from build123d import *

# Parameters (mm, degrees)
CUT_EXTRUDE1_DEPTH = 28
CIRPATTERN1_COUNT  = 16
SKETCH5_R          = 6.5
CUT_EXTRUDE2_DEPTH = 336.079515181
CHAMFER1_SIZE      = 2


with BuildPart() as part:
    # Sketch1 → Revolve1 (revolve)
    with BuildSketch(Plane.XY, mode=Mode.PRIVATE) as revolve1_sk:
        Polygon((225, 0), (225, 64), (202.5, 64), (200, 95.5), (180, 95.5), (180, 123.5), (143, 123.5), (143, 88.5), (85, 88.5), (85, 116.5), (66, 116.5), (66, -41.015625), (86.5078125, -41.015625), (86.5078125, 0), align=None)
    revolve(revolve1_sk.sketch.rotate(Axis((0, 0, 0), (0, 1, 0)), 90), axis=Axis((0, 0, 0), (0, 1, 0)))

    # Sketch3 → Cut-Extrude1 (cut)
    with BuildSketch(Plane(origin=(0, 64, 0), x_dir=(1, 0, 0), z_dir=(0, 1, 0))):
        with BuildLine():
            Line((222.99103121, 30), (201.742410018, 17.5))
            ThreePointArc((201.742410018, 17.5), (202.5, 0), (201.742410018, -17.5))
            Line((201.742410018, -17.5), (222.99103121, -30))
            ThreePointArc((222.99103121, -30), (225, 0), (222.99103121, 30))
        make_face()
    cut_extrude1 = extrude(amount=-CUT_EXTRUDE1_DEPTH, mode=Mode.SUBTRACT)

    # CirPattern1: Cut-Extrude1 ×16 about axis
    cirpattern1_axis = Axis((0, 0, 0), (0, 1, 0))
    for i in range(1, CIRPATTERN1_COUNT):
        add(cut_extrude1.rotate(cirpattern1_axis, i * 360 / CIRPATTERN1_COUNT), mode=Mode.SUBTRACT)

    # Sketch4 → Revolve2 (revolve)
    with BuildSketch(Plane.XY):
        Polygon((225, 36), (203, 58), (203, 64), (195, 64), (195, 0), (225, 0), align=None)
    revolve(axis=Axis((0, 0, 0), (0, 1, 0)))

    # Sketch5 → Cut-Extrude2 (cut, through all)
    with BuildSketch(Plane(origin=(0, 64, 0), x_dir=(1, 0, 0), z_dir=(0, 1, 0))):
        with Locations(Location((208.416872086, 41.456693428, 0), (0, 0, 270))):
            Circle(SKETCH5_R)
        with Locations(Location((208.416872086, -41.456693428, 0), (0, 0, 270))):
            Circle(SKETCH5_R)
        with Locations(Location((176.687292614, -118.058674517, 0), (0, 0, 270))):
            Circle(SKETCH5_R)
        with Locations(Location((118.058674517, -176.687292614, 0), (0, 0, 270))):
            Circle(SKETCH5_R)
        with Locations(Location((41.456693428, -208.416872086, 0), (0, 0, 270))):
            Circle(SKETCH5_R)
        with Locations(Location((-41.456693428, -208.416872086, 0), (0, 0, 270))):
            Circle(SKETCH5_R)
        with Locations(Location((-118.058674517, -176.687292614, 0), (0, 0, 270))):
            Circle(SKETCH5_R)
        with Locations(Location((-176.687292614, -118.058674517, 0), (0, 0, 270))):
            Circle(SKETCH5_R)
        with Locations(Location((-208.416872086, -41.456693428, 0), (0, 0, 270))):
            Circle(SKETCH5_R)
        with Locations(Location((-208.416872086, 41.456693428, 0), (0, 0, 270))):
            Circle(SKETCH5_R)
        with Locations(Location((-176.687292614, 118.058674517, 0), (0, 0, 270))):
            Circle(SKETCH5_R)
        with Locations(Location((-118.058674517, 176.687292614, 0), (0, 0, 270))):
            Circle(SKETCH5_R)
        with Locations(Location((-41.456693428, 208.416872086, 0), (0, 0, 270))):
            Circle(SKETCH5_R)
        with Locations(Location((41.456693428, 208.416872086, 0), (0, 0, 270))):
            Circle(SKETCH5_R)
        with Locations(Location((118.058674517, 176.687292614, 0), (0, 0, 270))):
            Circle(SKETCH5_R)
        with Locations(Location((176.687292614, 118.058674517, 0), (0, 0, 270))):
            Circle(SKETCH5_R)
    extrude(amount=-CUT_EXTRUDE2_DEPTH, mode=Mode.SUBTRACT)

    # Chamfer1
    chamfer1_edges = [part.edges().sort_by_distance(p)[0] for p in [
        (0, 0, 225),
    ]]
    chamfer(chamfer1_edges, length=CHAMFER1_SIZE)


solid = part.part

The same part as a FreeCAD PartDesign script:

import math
import FreeCAD as App
import Part
import Sketcher

V = App.Vector


def edges_at(feature, points):
    """Names of the edges that pass closest to the given points."""
    edges = feature.Shape.Edges
    near = lambda p: min(range(len(edges)), key=lambda i: edges[i].distToShape(Part.Vertex(*p))[0])
    return sorted({f"Edge{near(p) + 1}" for p in points})

doc = App.newDocument("Part")
params = doc.addObject("Spreadsheet::Sheet", "Params")
for row, (alias, value) in enumerate([
    ("sketch1_width", "20 mm"),
    ("sketch1_width2", "37 mm"),
    ("sketch1_width3", "58 mm"),
    ("sketch1_width4", "19 mm"),
    ("sketch1_height", "64 mm"),
    ("revolution_angle", "360 deg"),
    ("sketch2_radius", "225 mm"),
    ("sketch2_radius2", "202.5 mm"),
    ("pocket1_length", "28 mm"),
    ("sketch3_width", "8 mm"),
    ("sketch3_width2", "30 mm"),
    ("sketch3_height", "6 mm"),
    ("sketch3_height2", "64 mm"),
    ("sketch3_height3", "36 mm"),
    ("revolution2_angle", "360 deg"),
    ("sketch4_diameter", "13 mm"),
    ("chamfer_size", "2 mm"),
], start=1):
    params.set(f"A{row}", alias)
    params.set(f"B{row}", "=" + value)
    params.setAlias(f"B{row}", alias)

body = doc.addObject("PartDesign::Body", "Body")

sketch1 = doc.addObject("Sketcher::SketchObject", "Sketch")
body.addObject(sketch1)
sketch1.AttachmentSupport = (doc.XY_Plane, [""])
sketch1.MapMode = "FlatFace"
sketch1.addGeometry(Part.LineSegment(V(225, 0, 0), V(225, 64, 0)), False)
sketch1.addGeometry(Part.LineSegment(V(225, 64, 0), V(202.5, 64, 0)), False)
sketch1.addGeometry(Part.LineSegment(V(202.5, 64, 0), V(200, 95.5, 0)), False)
sketch1.addGeometry(Part.LineSegment(V(200, 95.5, 0), V(180, 95.5, 0)), False)
sketch1.addGeometry(Part.LineSegment(V(180, 95.5, 0), V(180, 123.5, 0)), False)
sketch1.addGeometry(Part.LineSegment(V(180, 123.5, 0), V(143, 123.5, 0)), False)
sketch1.addGeometry(Part.LineSegment(V(143, 123.5, 0), V(143, 88.5, 0)), False)
sketch1.addGeometry(Part.LineSegment(V(143, 88.5, 0), V(85, 88.5, 0)), False)
sketch1.addGeometry(Part.LineSegment(V(85, 88.5, 0), V(85, 116.5, 0)), False)
sketch1.addGeometry(Part.LineSegment(V(85, 116.5, 0), V(66, 116.5, 0)), False)
sketch1.addGeometry(Part.LineSegment(V(66, 116.5, 0), V(66, -41.015625, 0)), False)
sketch1.addGeometry(Part.LineSegment(V(66, -41.015625, 0), V(86.507812, -41.015625, 0)), False)
sketch1.addGeometry(Part.LineSegment(V(86.507812, -41.015625, 0), V(86.507812, 0, 0)), False)
sketch1.addGeometry(Part.LineSegment(V(86.507812, 0, 0), V(225, 0, 0)), False)
sketch1.addConstraint(Sketcher.Constraint("Coincident", 0, 2, 1, 1))
sketch1.addConstraint(Sketcher.Constraint("Coincident", 1, 2, 2, 1))
sketch1.addConstraint(Sketcher.Constraint("Coincident", 2, 2, 3, 1))
sketch1.addConstraint(Sketcher.Constraint("Coincident", 3, 2, 4, 1))
sketch1.addConstraint(Sketcher.Constraint("Coincident", 4, 2, 5, 1))
sketch1.addConstraint(Sketcher.Constraint("Coincident", 5, 2, 6, 1))
sketch1.addConstraint(Sketcher.Constraint("Coincident", 6, 2, 7, 1))
sketch1.addConstraint(Sketcher.Constraint("Coincident", 7, 2, 8, 1))
sketch1.addConstraint(Sketcher.Constraint("Coincident", 8, 2, 9, 1))
sketch1.addConstraint(Sketcher.Constraint("Coincident", 9, 2, 10, 1))
sketch1.addConstraint(Sketcher.Constraint("Coincident", 10, 2, 11, 1))
sketch1.addConstraint(Sketcher.Constraint("Coincident", 11, 2, 12, 1))
sketch1.addConstraint(Sketcher.Constraint("Coincident", 12, 2, 13, 1))
sketch1.addConstraint(Sketcher.Constraint("Coincident", 13, 2, 0, 1))
sketch1.addConstraint(Sketcher.Constraint("Vertical", 0))
sketch1.addConstraint(Sketcher.Constraint("Horizontal", 1))
sketch1.addConstraint(Sketcher.Constraint("Horizontal", 3))
sketch1.addConstraint(Sketcher.Constraint("Vertical", 4))
sketch1.addConstraint(Sketcher.Constraint("Horizontal", 5))
sketch1.addConstraint(Sketcher.Constraint("Vertical", 6))
sketch1.addConstraint(Sketcher.Constraint("Horizontal", 7))
sketch1.addConstraint(Sketcher.Constraint("Vertical", 8))
sketch1.addConstraint(Sketcher.Constraint("Horizontal", 9))
sketch1.addConstraint(Sketcher.Constraint("Vertical", 10))
sketch1.addConstraint(Sketcher.Constraint("Horizontal", 11))
sketch1.addConstraint(Sketcher.Constraint("Vertical", 12))
sketch1.addConstraint(Sketcher.Constraint("Horizontal", 13))
sketch1.addConstraint(Sketcher.Constraint("PointOnObject", 12, 2, -1))
sketch1.addConstraint(Sketcher.Constraint("Equal", 4, 8))
sketch1.addConstraint(Sketcher.Constraint("DistanceX", 3, 2, 3, 1, 20.0))
sketch1.addConstraint(Sketcher.Constraint("DistanceX", 5, 2, 5, 1, 37.0))
sketch1.addConstraint(Sketcher.Constraint("DistanceX", 7, 2, 7, 1, 58.0))
sketch1.addConstraint(Sketcher.Constraint("DistanceX", 9, 2, 9, 1, 19.0))
sketch1.addConstraint(Sketcher.Constraint("DistanceY", 0, 1, 0, 2, 64.0))
sketch1.addConstraint(Sketcher.Constraint("DistanceY", 4, 1, 4, 2, 28.0))
sketch1.addConstraint(Sketcher.Constraint("DistanceY", 6, 2, 6, 1, 35.0))
sketch1.addConstraint(Sketcher.Constraint("DistanceX", 1, 2, 1, 1, 22.5))
sketch1.addConstraint(Sketcher.Constraint("DistanceX", -1, 1, 0, 2, 225.0))
sketch1.addConstraint(Sketcher.Constraint("DistanceX", -1, 1, 2, 2, 200.0))
sketch1.addConstraint(Sketcher.Constraint("DistanceY", -1, 1, 2, 2, 95.5))
sketch1.addConstraint(Sketcher.Constraint("DistanceX", 11, 1, 11, 2, 20.507812))
sketch1.addConstraint(Sketcher.Constraint("DistanceY", 10, 2, 10, 1, 157.515625))
sketch1.setExpression("Constraints[29]", "Params.sketch1_width")
sketch1.setExpression("Constraints[30]", "Params.sketch1_width2")
sketch1.setExpression("Constraints[31]", "Params.sketch1_width3")
sketch1.setExpression("Constraints[32]", "Params.sketch1_width4")
sketch1.setExpression("Constraints[33]", "Params.sketch1_height")
revolution = doc.addObject("PartDesign::Revolution", "Revolution")
body.addObject(revolution)
revolution.Profile = sketch1
revolution.ReferenceAxis = (sketch1, ["V_Axis"])
revolution.setExpression("Angle", "Params.revolution_angle")

sketch2 = doc.addObject("Sketcher::SketchObject", "Sketch001")
body.addObject(sketch2)
sketch2.AttachmentSupport = (doc.XZ_Plane, [""])
sketch2.MapMode = "FlatFace"
sketch2.AttachmentOffset = App.Placement(V(0, 0, -64), App.Rotation())
sketch2.addGeometry(Part.LineSegment(V(222.991031, -30, 0), V(201.74241, -17.5, 0)), False)
sketch2.addGeometry(Part.ArcOfCircle(Part.Circle(V(0, 0, 0), V(0, 0, 1), 202.5), math.radians(-4.957671), math.radians(4.957671)), False)
sketch2.addGeometry(Part.LineSegment(V(201.74241, 17.5, 0), V(222.991031, 30, 0)), False)
sketch2.addGeometry(Part.ArcOfCircle(Part.Circle(V(0, 0, 0), V(0, 0, 1), 225), math.radians(-7.662256), math.radians(7.662256)), False)
sketch2.addConstraint(Sketcher.Constraint("Coincident", 0, 2, 1, 1))
sketch2.addConstraint(Sketcher.Constraint("Coincident", 1, 2, 2, 1))
sketch2.addConstraint(Sketcher.Constraint("Coincident", 2, 2, 3, 2))
sketch2.addConstraint(Sketcher.Constraint("Coincident", 3, 1, 0, 1))
sketch2.addConstraint(Sketcher.Constraint("Coincident", 1, 3, -1, 1))
sketch2.addConstraint(Sketcher.Constraint("Coincident", 3, 3, -1, 1))
sketch2.addConstraint(Sketcher.Constraint("Vertical", 0, 2, 1, 2))
sketch2.addConstraint(Sketcher.Constraint("Vertical", 2, 2, 3, 1))
sketch2.addConstraint(Sketcher.Constraint("Radius", 3, 225.0))
sketch2.addConstraint(Sketcher.Constraint("Radius", 1, 202.5))
sketch2.addConstraint(Sketcher.Constraint("DistanceY", -1, 1, 2, 2, 30.0))
sketch2.addConstraint(Sketcher.Constraint("DistanceY", 0, 2, 1, 2, 35.0))
sketch2.setExpression("Constraints[8]", "Params.sketch2_radius")
sketch2.setExpression("Constraints[9]", "Params.sketch2_radius2")
pocket1 = doc.addObject("PartDesign::Pocket", "Pocket")
body.addObject(pocket1)
pocket1.Profile = sketch2
pocket1.setExpression("Length", "Params.pocket1_length")
pocket1.Reversed = True
doc.recompute()

polarpattern = doc.addObject("PartDesign::PolarPattern", "PolarPattern")
body.addObject(polarpattern)
polarpattern.Originals = [pocket1]
polarpattern.Axis = (doc.Y_Axis, [""])
polarpattern.Angle = 360
polarpattern.Occurrences = 16
body.Tip = polarpattern

sketch3 = doc.addObject("Sketcher::SketchObject", "Sketch002")
body.addObject(sketch3)
sketch3.AttachmentSupport = (doc.XY_Plane, [""])
sketch3.MapMode = "FlatFace"
sketch3.addGeometry(Part.LineSegment(V(225, 36, 0), V(203, 58, 0)), False)
sketch3.addGeometry(Part.LineSegment(V(203, 58, 0), V(203, 64, 0)), False)
sketch3.addGeometry(Part.LineSegment(V(203, 64, 0), V(195, 64, 0)), False)
sketch3.addGeometry(Part.LineSegment(V(195, 64, 0), V(195, 0, 0)), False)
sketch3.addGeometry(Part.LineSegment(V(195, 0, 0), V(225, 0, 0)), False)
sketch3.addGeometry(Part.LineSegment(V(225, 0, 0), V(225, 36, 0)), False)
sketch3.addConstraint(Sketcher.Constraint("Coincident", 0, 2, 1, 1))
sketch3.addConstraint(Sketcher.Constraint("Coincident", 1, 2, 2, 1))
sketch3.addConstraint(Sketcher.Constraint("Coincident", 2, 2, 3, 1))
sketch3.addConstraint(Sketcher.Constraint("Coincident", 3, 2, 4, 1))
sketch3.addConstraint(Sketcher.Constraint("Coincident", 4, 2, 5, 1))
sketch3.addConstraint(Sketcher.Constraint("Coincident", 5, 2, 0, 1))
sketch3.addConstraint(Sketcher.Constraint("Vertical", 1))
sketch3.addConstraint(Sketcher.Constraint("Horizontal", 2))
sketch3.addConstraint(Sketcher.Constraint("Vertical", 3))
sketch3.addConstraint(Sketcher.Constraint("Horizontal", 4))
sketch3.addConstraint(Sketcher.Constraint("Vertical", 5))
sketch3.addConstraint(Sketcher.Constraint("PointOnObject", 3, 2, -1))
sketch3.addConstraint(Sketcher.Constraint("DistanceX", 2, 2, 2, 1, 8.0))
sketch3.addConstraint(Sketcher.Constraint("DistanceX", 4, 1, 4, 2, 30.0))
sketch3.addConstraint(Sketcher.Constraint("DistanceY", 1, 1, 1, 2, 6.0))
sketch3.addConstraint(Sketcher.Constraint("DistanceY", 3, 2, 3, 1, 64.0))
sketch3.addConstraint(Sketcher.Constraint("DistanceY", 5, 1, 5, 2, 36.0))
sketch3.addConstraint(Sketcher.Constraint("DistanceX", -1, 1, 0, 2, 203.0))
sketch3.setExpression("Constraints[12]", "Params.sketch3_width")
sketch3.setExpression("Constraints[13]", "Params.sketch3_width2")
sketch3.setExpression("Constraints[14]", "Params.sketch3_height")
sketch3.setExpression("Constraints[15]", "Params.sketch3_height2")
sketch3.setExpression("Constraints[16]", "Params.sketch3_height3")
revolution2 = doc.addObject("PartDesign::Revolution", "Revolution001")
body.addObject(revolution2)
revolution2.Profile = sketch3
revolution2.ReferenceAxis = (sketch3, ["V_Axis"])
revolution2.setExpression("Angle", "Params.revolution2_angle")

sketch4 = doc.addObject("Sketcher::SketchObject", "Sketch003")
body.addObject(sketch4)
sketch4.AttachmentSupport = (doc.XZ_Plane, [""])
sketch4.MapMode = "FlatFace"
sketch4.AttachmentOffset = App.Placement(V(0, 0, -64), App.Rotation())
sketch4.addGeometry(Part.Circle(V(208.416872, -41.456693, 0), V(0, 0, 1), 6.5), False)
sketch4.addGeometry(Part.Circle(V(208.416872, 41.456693, 0), V(0, 0, 1), 6.5), False)
sketch4.addGeometry(Part.Circle(V(176.687293, 118.058675, 0), V(0, 0, 1), 6.5), False)
sketch4.addGeometry(Part.Circle(V(118.058675, 176.687293, 0), V(0, 0, 1), 6.5), False)
sketch4.addGeometry(Part.Circle(V(41.456693, 208.416872, 0), V(0, 0, 1), 6.5), False)
sketch4.addGeometry(Part.Circle(V(-41.456693, 208.416872, 0), V(0, 0, 1), 6.5), False)
sketch4.addGeometry(Part.Circle(V(-118.058675, 176.687293, 0), V(0, 0, 1), 6.5), False)
sketch4.addGeometry(Part.Circle(V(-176.687293, 118.058675, 0), V(0, 0, 1), 6.5), False)
sketch4.addGeometry(Part.Circle(V(-208.416872, 41.456693, 0), V(0, 0, 1), 6.5), False)
sketch4.addGeometry(Part.Circle(V(-208.416872, -41.456693, 0), V(0, 0, 1), 6.5), False)
sketch4.addGeometry(Part.Circle(V(-176.687293, -118.058675, 0), V(0, 0, 1), 6.5), False)
sketch4.addGeometry(Part.Circle(V(-118.058675, -176.687293, 0), V(0, 0, 1), 6.5), False)
sketch4.addGeometry(Part.Circle(V(-41.456693, -208.416872, 0), V(0, 0, 1), 6.5), False)
sketch4.addGeometry(Part.Circle(V(41.456693, -208.416872, 0), V(0, 0, 1), 6.5), False)
sketch4.addGeometry(Part.Circle(V(118.058675, -176.687293, 0), V(0, 0, 1), 6.5), False)
sketch4.addGeometry(Part.Circle(V(176.687293, -118.058675, 0), V(0, 0, 1), 6.5), False)
sketch4.addConstraint(Sketcher.Constraint("Equal", 0, 1))
sketch4.addConstraint(Sketcher.Constraint("Equal", 1, 2))
sketch4.addConstraint(Sketcher.Constraint("Equal", 2, 3))
sketch4.addConstraint(Sketcher.Constraint("Equal", 3, 4))
sketch4.addConstraint(Sketcher.Constraint("Equal", 4, 5))
sketch4.addConstraint(Sketcher.Constraint("Equal", 5, 6))
sketch4.addConstraint(Sketcher.Constraint("Equal", 6, 7))
sketch4.addConstraint(Sketcher.Constraint("Equal", 7, 8))
sketch4.addConstraint(Sketcher.Constraint("Equal", 8, 9))
sketch4.addConstraint(Sketcher.Constraint("Equal", 9, 10))
sketch4.addConstraint(Sketcher.Constraint("Equal", 10, 11))
sketch4.addConstraint(Sketcher.Constraint("Equal", 11, 12))
sketch4.addConstraint(Sketcher.Constraint("Equal", 12, 13))
sketch4.addConstraint(Sketcher.Constraint("Equal", 13, 14))
sketch4.addConstraint(Sketcher.Constraint("Equal", 14, 15))
sketch4.addConstraint(Sketcher.Constraint("Symmetric", 0, 3, 8, 3, -1, 1))
sketch4.addConstraint(Sketcher.Constraint("Symmetric", 1, 3, 9, 3, -1, 1))
sketch4.addConstraint(Sketcher.Constraint("Symmetric", 2, 3, 10, 3, -1, 1))
sketch4.addConstraint(Sketcher.Constraint("Symmetric", 3, 3, 11, 3, -1, 1))
sketch4.addConstraint(Sketcher.Constraint("Symmetric", 4, 3, 12, 3, -1, 1))
sketch4.addConstraint(Sketcher.Constraint("Symmetric", 5, 3, 13, 3, -1, 1))
sketch4.addConstraint(Sketcher.Constraint("Symmetric", 6, 3, 14, 3, -1, 1))
sketch4.addConstraint(Sketcher.Constraint("Symmetric", 7, 3, 15, 3, -1, 1))
sketch4.addConstraint(Sketcher.Constraint("Symmetric", 4, 3, 5, 3, -2))
sketch4.addConstraint(Sketcher.Constraint("Symmetric", 3, 3, 6, 3, -2))
sketch4.addConstraint(Sketcher.Constraint("Symmetric", 2, 3, 7, 3, -2))
sketch4.addConstraint(Sketcher.Constraint("Symmetric", 1, 3, 8, 3, -2))
sketch4.addConstraint(Sketcher.Constraint("Diameter", 0, 13.0))
sketch4.addConstraint(Sketcher.Constraint("DistanceY", 1, 3, 3, 3, 135.230599))
sketch4.addConstraint(Sketcher.Constraint("DistanceX", 4, 3, 2, 3, 135.230599))
sketch4.addConstraint(Sketcher.Constraint("DistanceX", 2, 3, 1, 3, 31.729579))
sketch4.addConstraint(Sketcher.Constraint("DistanceY", 1, 3, 2, 3, 76.601981))
sketch4.addConstraint(Sketcher.Constraint("DistanceX", 3, 3, 2, 3, 58.628618))
sketch4.addConstraint(Sketcher.Constraint("DistanceY", 3, 3, 4, 3, 31.729579))
sketch4.addConstraint(Sketcher.Constraint("DistanceX", 6, 3, 3, 3, 236.117349))
sketch4.addConstraint(Sketcher.Constraint("DistanceY", 10, 3, 7, 3, 236.117349))
sketch4.setExpression("Constraints[27]", "Params.sketch4_diameter")
pocket2 = doc.addObject("PartDesign::Pocket", "Pocket001")
body.addObject(pocket2)
pocket2.Profile = sketch4
pocket2.Type = "ThroughAll"
pocket2.Reversed = True
doc.recompute()

chamfer = doc.addObject("PartDesign::Chamfer", "Chamfer")
body.addObject(chamfer)
chamfer.Base = (pocket2, edges_at(pocket2, [(0, 0, 225)]))
chamfer.setExpression("Size", "Params.chamfer_size")

doc.recompute()
